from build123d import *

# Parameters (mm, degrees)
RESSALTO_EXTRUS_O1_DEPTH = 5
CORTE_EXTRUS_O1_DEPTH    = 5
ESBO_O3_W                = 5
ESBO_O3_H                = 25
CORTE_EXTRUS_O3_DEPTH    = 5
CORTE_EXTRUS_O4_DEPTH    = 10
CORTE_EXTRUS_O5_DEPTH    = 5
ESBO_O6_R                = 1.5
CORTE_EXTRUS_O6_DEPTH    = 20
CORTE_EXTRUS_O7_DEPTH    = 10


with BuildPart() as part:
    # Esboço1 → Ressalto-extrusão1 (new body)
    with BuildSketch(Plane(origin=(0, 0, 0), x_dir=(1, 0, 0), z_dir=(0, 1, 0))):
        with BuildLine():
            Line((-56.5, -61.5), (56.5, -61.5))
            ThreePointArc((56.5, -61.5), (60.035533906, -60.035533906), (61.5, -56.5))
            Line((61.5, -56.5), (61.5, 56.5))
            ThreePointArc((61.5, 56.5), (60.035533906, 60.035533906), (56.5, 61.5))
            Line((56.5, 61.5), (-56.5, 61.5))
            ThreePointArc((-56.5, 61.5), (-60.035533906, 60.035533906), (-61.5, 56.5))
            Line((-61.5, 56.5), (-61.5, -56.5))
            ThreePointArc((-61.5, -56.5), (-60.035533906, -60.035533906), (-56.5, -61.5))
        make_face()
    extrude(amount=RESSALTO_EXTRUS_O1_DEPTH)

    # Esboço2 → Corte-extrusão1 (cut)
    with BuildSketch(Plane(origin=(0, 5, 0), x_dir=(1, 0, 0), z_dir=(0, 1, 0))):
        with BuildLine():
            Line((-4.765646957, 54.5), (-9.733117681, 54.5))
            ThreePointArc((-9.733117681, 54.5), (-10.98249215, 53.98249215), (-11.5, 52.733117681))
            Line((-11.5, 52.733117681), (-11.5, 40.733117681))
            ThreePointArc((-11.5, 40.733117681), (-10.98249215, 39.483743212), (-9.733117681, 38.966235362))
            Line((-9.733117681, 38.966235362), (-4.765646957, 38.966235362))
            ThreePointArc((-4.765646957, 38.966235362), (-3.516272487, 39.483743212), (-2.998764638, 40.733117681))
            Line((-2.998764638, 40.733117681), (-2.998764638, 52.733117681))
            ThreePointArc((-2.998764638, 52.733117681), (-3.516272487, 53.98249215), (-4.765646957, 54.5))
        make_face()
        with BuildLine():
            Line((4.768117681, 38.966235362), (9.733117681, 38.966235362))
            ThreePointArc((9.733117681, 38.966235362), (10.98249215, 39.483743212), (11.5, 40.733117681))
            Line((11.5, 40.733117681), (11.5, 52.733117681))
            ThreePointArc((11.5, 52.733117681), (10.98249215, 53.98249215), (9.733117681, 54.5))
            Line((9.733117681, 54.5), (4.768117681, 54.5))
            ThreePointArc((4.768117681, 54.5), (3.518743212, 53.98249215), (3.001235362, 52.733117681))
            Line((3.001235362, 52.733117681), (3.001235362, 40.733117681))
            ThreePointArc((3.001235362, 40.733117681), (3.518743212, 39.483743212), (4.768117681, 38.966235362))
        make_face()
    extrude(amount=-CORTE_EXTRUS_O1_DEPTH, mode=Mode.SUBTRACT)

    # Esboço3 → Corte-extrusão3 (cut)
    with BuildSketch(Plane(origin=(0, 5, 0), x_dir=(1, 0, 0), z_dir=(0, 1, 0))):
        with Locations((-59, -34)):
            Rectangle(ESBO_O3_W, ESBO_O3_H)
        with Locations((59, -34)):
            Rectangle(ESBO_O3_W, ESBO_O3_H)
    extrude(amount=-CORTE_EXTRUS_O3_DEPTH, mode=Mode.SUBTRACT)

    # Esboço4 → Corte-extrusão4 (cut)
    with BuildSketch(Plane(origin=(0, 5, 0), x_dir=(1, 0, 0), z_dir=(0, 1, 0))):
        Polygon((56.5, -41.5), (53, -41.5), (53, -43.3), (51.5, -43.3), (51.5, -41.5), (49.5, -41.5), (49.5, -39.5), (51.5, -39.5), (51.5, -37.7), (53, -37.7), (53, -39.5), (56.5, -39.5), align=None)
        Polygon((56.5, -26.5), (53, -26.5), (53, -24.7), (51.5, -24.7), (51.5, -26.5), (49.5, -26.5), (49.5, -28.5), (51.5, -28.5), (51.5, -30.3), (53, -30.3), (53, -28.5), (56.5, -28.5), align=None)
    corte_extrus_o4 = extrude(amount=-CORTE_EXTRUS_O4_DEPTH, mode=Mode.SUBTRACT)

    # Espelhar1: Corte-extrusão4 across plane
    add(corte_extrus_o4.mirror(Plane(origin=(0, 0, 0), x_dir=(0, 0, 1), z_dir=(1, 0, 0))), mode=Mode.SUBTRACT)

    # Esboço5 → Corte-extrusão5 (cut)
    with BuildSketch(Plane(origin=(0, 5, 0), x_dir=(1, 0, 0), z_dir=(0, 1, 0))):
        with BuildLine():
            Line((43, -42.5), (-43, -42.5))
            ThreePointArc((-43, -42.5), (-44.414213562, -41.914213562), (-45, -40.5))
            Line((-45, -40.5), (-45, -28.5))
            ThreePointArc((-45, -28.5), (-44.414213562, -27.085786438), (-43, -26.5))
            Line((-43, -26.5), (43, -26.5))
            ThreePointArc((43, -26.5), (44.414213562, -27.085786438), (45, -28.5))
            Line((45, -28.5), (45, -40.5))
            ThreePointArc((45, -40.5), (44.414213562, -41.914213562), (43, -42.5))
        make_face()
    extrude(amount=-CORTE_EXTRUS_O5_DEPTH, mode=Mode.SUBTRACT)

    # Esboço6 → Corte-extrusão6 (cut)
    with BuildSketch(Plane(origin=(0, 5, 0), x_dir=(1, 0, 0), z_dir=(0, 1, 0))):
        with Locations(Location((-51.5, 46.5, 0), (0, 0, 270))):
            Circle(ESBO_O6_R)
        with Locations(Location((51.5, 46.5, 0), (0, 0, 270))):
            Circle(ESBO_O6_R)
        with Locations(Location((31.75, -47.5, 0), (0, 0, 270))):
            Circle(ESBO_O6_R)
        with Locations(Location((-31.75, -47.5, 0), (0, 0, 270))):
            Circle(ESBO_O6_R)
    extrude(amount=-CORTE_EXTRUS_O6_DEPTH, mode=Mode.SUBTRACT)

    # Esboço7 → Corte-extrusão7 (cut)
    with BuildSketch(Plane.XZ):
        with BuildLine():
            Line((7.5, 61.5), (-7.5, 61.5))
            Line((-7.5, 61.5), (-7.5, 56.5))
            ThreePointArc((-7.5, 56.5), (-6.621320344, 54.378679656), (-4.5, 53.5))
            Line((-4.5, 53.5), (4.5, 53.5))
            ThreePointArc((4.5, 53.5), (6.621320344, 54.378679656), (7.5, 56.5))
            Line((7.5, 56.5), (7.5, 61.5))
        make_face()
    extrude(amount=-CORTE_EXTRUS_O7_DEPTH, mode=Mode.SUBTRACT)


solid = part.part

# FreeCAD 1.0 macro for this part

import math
import FreeCAD as App
import Part
import Sketcher
Q = App.Units.Quantity


def add_polygon(sketch, points):
    """Adds a closed chain of lines whose ends are joined by coincident constraints."""
    first, n = sketch.GeometryCount, len(points)
    for a, b in zip(points, points[1:] + points[:1]):
        sketch.addGeometry(Part.LineSegment(App.Vector(*a, 0), App.Vector(*b, 0)), False)
    for i in range(n):
        sketch.addConstraint(Sketcher.Constraint("Coincident", first + i, 2, first + (i + 1) % n, 1))

doc = App.newDocument("Part")
body = doc.addObject("PartDesign::Body", "Body")

# Sketch on XZ plane
sketch1 = body.newObject("Sketcher::SketchObject", "Sketch")
sketch1.AttachmentSupport = (doc.getObject("XZ_Plane"), [""])
sketch1.MapMode = "FlatFace"
sketch1.addGeometry([
    Part.LineSegment(App.Vector(-56.5, 61.5, 0), App.Vector(56.5, 61.5, 0)),  # 0
    Part.ArcOfCircle(Part.Circle(App.Vector(56.5, 56.5, 0), App.Vector(0, 0, 1), 5), math.radians(0), math.radians(90)),  # 1
    Part.LineSegment(App.Vector(61.5, 56.5, 0), App.Vector(61.5, -56.5, 0)),  # 2
    Part.ArcOfCircle(Part.Circle(App.Vector(56.5, -56.5, 0), App.Vector(0, 0, 1), 5), math.radians(-90), math.radians(0)),  # 3
    Part.LineSegment(App.Vector(56.5, -61.5, 0), App.Vector(-56.5, -61.5, 0)),  # 4
    Part.ArcOfCircle(Part.Circle(App.Vector(-56.5, -56.5, 0), App.Vector(0, 0, 1), 5), math.radians(180), math.radians(270)),  # 5
    Part.LineSegment(App.Vector(-61.5, -56.5, 0), App.Vector(-61.5, 56.5, 0)),  # 6
    Part.ArcOfCircle(Part.Circle(App.Vector(-56.5, 56.5, 0), App.Vector(0, 0, 1), 5), math.radians(90), math.radians(180)),  # 7
], False)
sketch1.addConstraint([
    Sketcher.Constraint("Tangent", 0, 2, 1, 2),
    Sketcher.Constraint("Tangent", 1, 1, 2, 1),
    Sketcher.Constraint("Tangent", 2, 2, 3, 2),
    Sketcher.Constraint("Tangent", 3, 1, 4, 1),
    Sketcher.Constraint("Tangent", 4, 2, 5, 2),
    Sketcher.Constraint("Tangent", 5, 1, 6, 1),
    Sketcher.Constraint("Tangent", 6, 2, 7, 2),
    Sketcher.Constraint("Tangent", 7, 1, 0, 1),
    Sketcher.Constraint("Horizontal", 0),
    Sketcher.Constraint("Vertical", 2),
    Sketcher.Constraint("Horizontal", 4),
    Sketcher.Constraint("Vertical", 6),
    Sketcher.Constraint("Equal", 1, 3),
    Sketcher.Constraint("Equal", 3, 5),
    Sketcher.Constraint("Equal", 5, 7),
    Sketcher.Constraint("Symmetric", 1, 3, 5, 3, -1, 1),
    Sketcher.Constraint("Equal", 4, 2),
    Sketcher.Constraint("Radius", 1, Q("5 mm")),
    Sketcher.Constraint("DistanceX", 0, 1, 0, 2, Q("113 mm")),
])
pad1 = body.newObject("PartDesign::Pad", "Pad")
pad1.Profile = sketch1
pad1.Length = 5
pad1.Reversed = True

# Sketch on XZ plane
sketch2 = body.newObject("Sketcher::SketchObject", "Sketch001")
sketch2.AttachmentSupport = (doc.getObject("XZ_Plane"), [""])
sketch2.MapMode = "FlatFace"
sketch2.AttachmentOffset = App.Placement(App.Vector(0, 0, -5), App.Rotation())
sketch2.addGeometry([
    Part.LineSegment(App.Vector(-4.765647, -54.5, 0), App.Vector(-9.733118, -54.5, 0)),  # 0
    Part.ArcOfCircle(Part.Circle(App.Vector(-9.733118, -52.733118, 0), App.Vector(0, 0, 1), 1.766882), math.radians(-180), math.radians(-90)),  # 1
    Part.LineSegment(App.Vector(-11.5, -52.733118, 0), App.Vector(-11.5, -40.733118, 0)),  # 2
    Part.ArcOfCircle(Part.Circle(App.Vector(-9.733118, -40.733118, 0), App.Vector(0, 0, 1), 1.766882), math.radians(90), math.radians(180)),  # 3
    Part.LineSegment(App.Vector(-9.733118, -38.966235, 0), App.Vector(-4.765647, -38.966235, 0)),  # 4
    Part.ArcOfCircle(Part.Circle(App.Vector(-4.765647, -40.733118, 0), App.Vector(0, 0, 1), 1.766882), math.radians(0), math.radians(90)),  # 5
    Part.LineSegment(App.Vector(-2.998765, -40.733118, 0), App.Vector(-2.998765, -52.733118, 0)),  # 6
    Part.ArcOfCircle(Part.Circle(App.Vector(-4.765647, -52.733118, 0), App.Vector(0, 0, 1), 1.766882), math.radians(-90), math.radians(0)),  # 7
    Part.LineSegment(App.Vector(4.768118, -38.966235, 0), App.Vector(9.733118, -38.966235, 0)),  # 8
    Part.ArcOfCircle(Part.Circle(App.Vector(9.733118, -40.733118, 0), App.Vector(0, 0, 1), 1.766882), math.radians(0), math.radians(90)),  # 9
    Part.LineSegment(App.Vector(11.5, -40.733118, 0), App.Vector(11.5, -52.733118, 0)),  # 10
    Part.ArcOfCircle(Part.Circle(App.Vector(9.733118, -52.733118, 0), App.Vector(0, 0, 1), 1.766882), math.radians(-90), math.radians(0)),  # 11
    Part.LineSegment(App.Vector(9.733118, -54.5, 0), App.Vector(4.768118, -54.5, 0)),  # 12
    Part.ArcOfCircle(Part.Circle(App.Vector(4.768118, -52.733118, 0), App.Vector(0, 0, 1), 1.766882), math.radians(-180), math.radians(-90)),  # 13
    Part.LineSegment(App.Vector(3.001235, -52.733118, 0), App.Vector(3.001235, -40.733118, 0)),  # 14
    Part.ArcOfCircle(Part.Circle(App.Vector(4.768118, -40.733118, 0), App.Vector(0, 0, 1), 1.766882), math.radians(90), math.radians(180)),  # 15
], False)
sketch2.addConstraint([
    Sketcher.Constraint("Tangent", 0, 2, 1, 2),
    Sketcher.Constraint("Tangent", 1, 1, 2, 1),
    Sketcher.Constraint("Tangent", 2, 2, 3, 2),
    Sketcher.Constraint("Tangent", 3, 1, 4, 1),
    Sketcher.Constraint("Tangent", 4, 2, 5, 2),
    Sketcher.Constraint("Tangent", 5, 1, 6, 1),
    Sketcher.Constraint("Tangent", 6, 2, 7, 2),
    Sketcher.Constraint("Tangent", 7, 1, 0, 1),
    Sketcher.Constraint("Tangent", 8, 2, 9, 2),
    Sketcher.Constraint("Tangent", 9, 1, 10, 1),
    Sketcher.Constraint("Tangent", 10, 2, 11, 2),
    Sketcher.Constraint("Tangent", 11, 1, 12, 1),
    Sketcher.Constraint("Tangent", 12, 2, 13, 2),
    Sketcher.Constraint("Tangent", 13, 1, 14, 1),
    Sketcher.Constraint("Tangent", 14, 2, 15, 2),
    Sketcher.Constraint("Tangent", 15, 1, 8, 1),
    Sketcher.Constraint("Horizontal", 0),
    Sketcher.Constraint("Vertical", 2),
    Sketcher.Constraint("Horizontal", 4),
    Sketcher.Constraint("Vertical", 6),
    Sketcher.Constraint("Horizontal", 8),
    Sketcher.Constraint("Vertical", 10),
    Sketcher.Constraint("Horizontal", 12),
    Sketcher.Constraint("Vertical", 14),
    Sketcher.Constraint("Equal", 1, 3),
    Sketcher.Constraint("Equal", 3, 5),
    Sketcher.Constraint("Equal", 5, 7),
    Sketcher.Constraint("Equal", 7, 9),
    Sketcher.Constraint("Equal", 9, 11),
    Sketcher.Constraint("Equal", 11, 13),
    Sketcher.Constraint("Equal", 13, 15),
    Sketcher.Constraint("Symmetric", 3, 3, 9, 3, -2),
    Sketcher.Constraint("Horizontal", 7, 3, 11, 3),
    Sketcher.Constraint("DistanceY", 2, 1, 2, 2, Q("12 mm")),
    Sketcher.Constraint("DistanceX", 6, 2, 13, 1, Q("6 mm")),
    Sketcher.Constraint("DistanceY", 0, 2, -1, 1, Q("54.5 mm")),
    Sketcher.Constraint("DistanceX", 1, 1, -1, 1, Q("11.5 mm")),
    Sketcher.Constraint("DistanceX", 8, 1, 8, 2, Q("4.965 mm")),
    Sketcher.Constraint("Radius", 1, Q("1.766882 mm")),
])
pocket1 = body.newObject("PartDesign::Pocket", "Pocket")
pocket1.Profile = sketch2
pocket1.Length = 5
pocket1.Reversed = True

# Sketch on XZ plane
sketch3 = body.newObject("Sketcher::SketchObject", "Sketch002")
sketch3.AttachmentSupport = (doc.getObject("XZ_Plane"), [""])
sketch3.MapMode = "FlatFace"
sketch3.AttachmentOffset = App.Placement(App.Vector(0, 0, -5), App.Rotation())
add_polygon(sketch3, [(-61.5, 21.5), (-61.5, 46.5), (-56.5, 46.5), (-56.5, 21.5)])  # lines 0-3
add_polygon(sketch3, [(56.5, 21.5), (56.5, 46.5), (61.5, 46.5), (61.5, 21.5)])  # lines 4-7
sketch3.addConstraint([
    Sketcher.Constraint("Vertical", 0),
    Sketcher.Constraint("Horizontal", 1),
    Sketcher.Constraint("Vertical", 2),
    Sketcher.Constraint("Horizontal", 3),
    Sketcher.Constraint("Vertical", 4),
    Sketcher.Constraint("Horizontal", 5),
    Sketcher.Constraint("Vertical", 6),
    Sketcher.Constraint("Horizontal", 7),
    Sketcher.Constraint("Symmetric", 1, 2, 4, 2, -2),
    Sketcher.Constraint("Symmetric", 3, 2, 6, 2, -2),
    Sketcher.Constraint("DistanceX", 1, 1, 1, 2, Q("5 mm")),
    Sketcher.Constraint("DistanceY", 0, 1, 0, 2, Q("25 mm")),
    Sketcher.Constraint("DistanceX", 1, 2, 4, 2, Q("113 mm")),
    Sketcher.Constraint("DistanceY", -1, 1, 0, 2, Q("46.5 mm")),
])
pocket2 = body.newObject("PartDesign::Pocket", "Pocket001")
pocket2.Profile = sketch3
pocket2.Length = 5
pocket2.Reversed = True

# Sketch on XZ plane
sketch4 = body.newObject("Sketcher::SketchObject", "Sketch003")
sketch4.AttachmentSupport = (doc.getObject("XZ_Plane"), [""])
sketch4.MapMode = "FlatFace"
sketch4.AttachmentOffset = App.Placement(App.Vector(0, 0, -5), App.Rotation())
add_polygon(sketch4, [(53, 41.5), (56.5, 41.5), (56.5, 39.5), (53, 39.5), (53, 37.7), (51.5, 37.7), (51.5, 39.5), (49.5, 39.5), (49.5, 41.5), (51.5, 41.5), (51.5, 43.3), (53, 43.3)])  # lines 0-11
add_polygon(sketch4, [(56.5, 26.5), (53, 26.5), (53, 24.7), (51.5, 24.7), (51.5, 26.5), (49.5, 26.5), (49.5, 28.5), (51.5, 28.5), (51.5, 30.3), (53, 30.3), (53, 28.5), (56.5, 28.5)])  # lines 12-23
sketch4.addConstraint([
    Sketcher.Constraint("Horizontal", 0),
    Sketcher.Constraint("Vertical", 1),
    Sketcher.Constraint("Horizontal", 2),
    Sketcher.Constraint("Vertical", 3),
    Sketcher.Constraint("Horizontal", 4),
    Sketcher.Constraint("Vertical", 5),
    Sketcher.Constraint("Horizontal", 6),
    Sketcher.Constraint("Vertical", 7),
    Sketcher.Constraint("Horizontal", 8),
    Sketcher.Constraint("Vertical", 9),
    Sketcher.Constraint("Horizontal", 10),
    Sketcher.Constraint("Vertical", 11),
    Sketcher.Constraint("Horizontal", 12),
    Sketcher.Constraint("Vertical", 13),
    Sketcher.Constraint("Horizontal", 14),
    Sketcher.Constraint("Vertical", 15),
    Sketcher.Constraint("Horizontal", 16),
    Sketcher.Constraint("Vertical", 17),
    Sketcher.Constraint("Horizontal", 18),
    Sketcher.Constraint("Vertical", 19),
    Sketcher.Constraint("Horizontal", 20),
    Sketcher.Constraint("Vertical", 21),
    Sketcher.Constraint("Horizontal", 22),
    Sketcher.Constraint("Vertical", 23),
    Sketcher.Constraint("Horizontal", 2, 2, 5, 2),
    Sketcher.Constraint("Horizontal", 0, 2, 7, 2),
    Sketcher.Constraint("Horizontal", 12, 2, 15, 2),
    Sketcher.Constraint("Horizontal", 18, 2, 21, 2),
    Sketcher.Constraint("Vertical", 5, 2, 8, 2),
    Sketcher.Constraint("Vertical", 3, 2, 10, 2),
    Sketcher.Constraint("Vertical", 11, 2, 12, 2),
    Sketcher.Constraint("Vertical", 9, 2, 14, 2),
    Sketcher.Constraint("Vertical", 7, 2, 16, 2),
    Sketcher.Constraint("Vertical", 15, 2, 18, 2),
    Sketcher.Constraint("Vertical", 13, 2, 20, 2),
    Sketcher.Constraint("Vertical", 1, 2, 22, 2),
    Sketcher.Constraint("Equal", 18, 1),
    Sketcher.Constraint("Equal", 5, 9),
    Sketcher.Constraint("Equal", 11, 13),
    Sketcher.Constraint("Equal", 7, 17),
    Sketcher.Constraint("Equal", 15, 19),
    Sketcher.Constraint("DistanceX", 6, 2, 6, 1, Q("2 mm")),
    Sketcher.Constraint("DistanceX", 0, 1, 0, 2, Q("3.5 mm")),
    Sketcher.Constraint("DistanceX", 4, 2, 4, 1, Q("1.5 mm")),
    Sketcher.Constraint("DistanceY", 3, 2, 3, 1, Q("1.8 mm")),
    Sketcher.Constraint("DistanceX", -1, 1, 2, 2, Q("53 mm")),
    Sketcher.Constraint("DistanceY", 12, 2, 2, 2, Q("13 mm")),
    Sketcher.Constraint("DistanceY", -1, 1, 0, 2, Q("41.5 mm")),
])
pocket3 = body.newObject("PartDesign::Pocket", "Pocket002")
pocket3.Profile = sketch4
pocket3.Length = 10
pocket3.Reversed = True
doc.recompute()

mirrored = body.newObject("PartDesign::Mirrored", "Mirrored")
mirrored.Originals = [pocket3]
mirrored.MirrorPlane = (doc.getObject("YZ_Plane"), [""])
body.Tip = mirrored

# Sketch on XZ plane
sketch5 = body.newObject("Sketcher::SketchObject", "Sketch004")
sketch5.AttachmentSupport = (doc.getObject("XZ_Plane"), [""])
sketch5.MapMode = "FlatFace"
sketch5.AttachmentOffset = App.Placement(App.Vector(0, 0, -5), App.Rotation())
sketch5.addGeometry([
    Part.LineSegment(App.Vector(-43, 42.5, 0), App.Vector(43, 42.5, 0)),  # 0
    Part.ArcOfCircle(Part.Circle(App.Vector(43, 40.5, 0), App.Vector(0, 0, 1), 2), math.radians(0), math.radians(90)),  # 1
    Part.LineSegment(App.Vector(45, 40.5, 0), App.Vector(45, 28.5, 0)),  # 2
    Part.ArcOfCircle(Part.Circle(App.Vector(43, 28.5, 0), App.Vector(0, 0, 1), 2), math.radians(-90), math.radians(0)),  # 3
    Part.LineSegment(App.Vector(43, 26.5, 0), App.Vector(-43, 26.5, 0)),  # 4
    Part.ArcOfCircle(Part.Circle(App.Vector(-43, 28.5, 0), App.Vector(0, 0, 1), 2), math.radians(-180), math.radians(-90)),  # 5
    Part.LineSegment(App.Vector(-45, 28.5, 0), App.Vector(-45, 40.5, 0)),  # 6
    Part.ArcOfCircle(Part.Circle(App.Vector(-43, 40.5, 0), App.Vector(0, 0, 1), 2), math.radians(90), math.radians(180)),  # 7
], False)
sketch5.addConstraint([
    Sketcher.Constraint("Tangent", 0, 2, 1, 2),
    Sketcher.Constraint("Tangent", 1, 1, 2, 1),
    Sketcher.Constraint("Tangent", 2, 2, 3, 2),
    Sketcher.Constraint("Tangent", 3, 1, 4, 1),
    Sketcher.Constraint("Tangent", 4, 2, 5, 2),
    Sketcher.Constraint("Tangent", 5, 1, 6, 1),
    Sketcher.Constraint("Tangent", 6, 2, 7, 2),
    Sketcher.Constraint("Tangent", 7, 1, 0, 1),
    Sketcher.Constraint("Horizontal", 0),
    Sketcher.Constraint("Vertical", 2),
    Sketcher.Constraint("Horizontal", 4),
    Sketcher.Constraint("Vertical", 6),
    Sketcher.Constraint("Equal", 1, 3),
    Sketcher.Constraint("Equal", 3, 5),
    Sketcher.Constraint("Equal", 5, 7),
    Sketcher.Constraint("Radius", 1, Q("2 mm")),
    Sketcher.Constraint("DistanceX", 0, 1, 0, 2, Q("86 mm")),
    Sketcher.Constraint("DistanceY", 2, 2, 2, 1, Q("12 mm")),
    Sketcher.Constraint("DistanceX", -1, 1, 1, 3, Q("43 mm")),
    Sketcher.Constraint("DistanceY", -1, 1, 1, 3, Q("40.5 mm")),
])
pocket4 = body.newObject("PartDesign::Pocket", "Pocket003")
pocket4.Profile = sketch5
pocket4.Length = 5
pocket4.Reversed = True

# Sketch on XZ plane
sketch6 = body.newObject("Sketcher::SketchObject", "Sketch005")
sketch6.AttachmentSupport = (doc.getObject("XZ_Plane"), [""])
sketch6.MapMode = "FlatFace"
sketch6.AttachmentOffset = App.Placement(App.Vector(0, 0, -5), App.Rotation())
sketch6.addGeometry([
    Part.Circle(App.Vector(-51.5, -46.5, 0), App.Vector(0, 0, 1), 1.5),
    Part.Circle(App.Vector(51.5, -46.5, 0), App.Vector(0, 0, 1), 1.5),
    Part.Circle(App.Vector(31.75, 47.5, 0), App.Vector(0, 0, 1), 1.5),
    Part.Circle(App.Vector(-31.75, 47.5, 0), App.Vector(0, 0, 1), 1.5),
], False)
sketch6.addConstraint([
    Sketcher.Constraint("Equal", 0, 1),
    Sketcher.Constraint("Equal", 1, 2),
    Sketcher.Constraint("Equal", 2, 3),
    Sketcher.Constraint("Symmetric", 0, 3, 1, 3, -2),
    Sketcher.Constraint("Symmetric", 2, 3, 3, 3, -2),
    Sketcher.Constraint("Diameter", 0, Q("3 mm")),
    Sketcher.Constraint("DistanceX", 0, 3, 1, 3, Q("103 mm")),
    Sketcher.Constraint("DistanceY", 1, 3, 2, 3, Q("94 mm")),
    Sketcher.Constraint("DistanceY", 0, 3, -1, 1, Q("46.5 mm")),
    Sketcher.Constraint("DistanceX", 3, 3, 2, 3, Q("63.5 mm")),
])
pocket5 = body.newObject("PartDesign::Pocket", "Pocket004")
pocket5.Profile = sketch6
pocket5.Length = 20
pocket5.Reversed = True

# Sketch on XZ plane
sketch7 = body.newObject("Sketcher::SketchObject", "Sketch006")
sketch7.AttachmentSupport = (doc.getObject("XZ_Plane"), [""])
sketch7.MapMode = "FlatFace"
sketch7.addGeometry([
    Part.LineSegment(App.Vector(7.5, 61.5, 0), App.Vector(-7.5, 61.5, 0)),  # 0
    Part.LineSegment(App.Vector(-7.5, 61.5, 0), App.Vector(-7.5, 56.5, 0)),  # 1
    Part.ArcOfCircle(Part.Circle(App.Vector(-4.5, 56.5, 0), App.Vector(0, 0, 1), 3), math.radians(180), math.radians(270)),  # 2
    Part.LineSegment(App.Vector(-4.5, 53.5, 0), App.Vector(4.5, 53.5, 0)),  # 3
    Part.ArcOfCircle(Part.Circle(App.Vector(4.5, 56.5, 0), App.Vector(0, 0, 1), 3), math.radians(-90), math.radians(0)),  # 4
    Part.LineSegment(App.Vector(7.5, 56.5, 0), App.Vector(7.5, 61.5, 0)),  # 5
], False)
sketch7.addConstraint([
    Sketcher.Constraint("Coincident", 0, 2, 1, 1),
    Sketcher.Constraint("Tangent", 1, 2, 2, 1),
    Sketcher.Constraint("Tangent", 2, 2, 3, 1),
    Sketcher.Constraint("Tangent", 3, 2, 4, 1),
    Sketcher.Constraint("Tangent", 4, 2, 5, 1),
    Sketcher.Constraint("Coincident", 5, 2, 0, 1),
    Sketcher.Constraint("Horizontal", 0),
    Sketcher.Constraint("Vertical", 1),
    Sketcher.Constraint("Horizontal", 3),
    Sketcher.Constraint("Vertical", 5),
    Sketcher.Constraint("Equal", 2, 4),
    Sketcher.Constraint("Radius", 2, Q("3 mm")),
    Sketcher.Constraint("DistanceX", 0, 2, 0, 1, Q("15 mm")),
    Sketcher.Constraint("DistanceY", 1, 2, 1, 1, Q("5 mm")),
    Sketcher.Constraint("DistanceX", 2, 3, -1, 1, Q("4.5 mm")),
    Sketcher.Constraint("DistanceY", -1, 1, 2, 3, Q("56.5 mm")),
])
pocket6 = body.newObject("PartDesign::Pocket", "Pocket005")
pocket6.Profile = sketch7
pocket6.Length = 10

doc.recompute()
